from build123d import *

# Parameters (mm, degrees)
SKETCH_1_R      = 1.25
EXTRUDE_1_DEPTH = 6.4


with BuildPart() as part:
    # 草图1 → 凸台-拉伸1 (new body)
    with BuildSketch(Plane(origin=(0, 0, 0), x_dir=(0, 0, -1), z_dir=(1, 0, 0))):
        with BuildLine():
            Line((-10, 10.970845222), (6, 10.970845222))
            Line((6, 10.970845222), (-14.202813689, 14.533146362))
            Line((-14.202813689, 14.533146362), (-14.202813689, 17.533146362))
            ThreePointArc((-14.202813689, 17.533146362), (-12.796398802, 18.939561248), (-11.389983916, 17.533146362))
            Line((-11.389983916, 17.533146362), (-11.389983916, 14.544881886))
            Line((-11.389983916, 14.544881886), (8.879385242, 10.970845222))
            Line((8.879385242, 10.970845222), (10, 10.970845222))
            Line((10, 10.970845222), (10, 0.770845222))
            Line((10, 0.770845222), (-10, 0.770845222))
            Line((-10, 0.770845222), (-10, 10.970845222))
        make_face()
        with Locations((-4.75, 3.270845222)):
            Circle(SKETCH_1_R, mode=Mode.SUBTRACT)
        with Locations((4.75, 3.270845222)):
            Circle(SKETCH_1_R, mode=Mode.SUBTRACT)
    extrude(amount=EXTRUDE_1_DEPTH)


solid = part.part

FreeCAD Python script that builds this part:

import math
import FreeCAD as App
import Part
import Sketcher
from FreeCAD import Vector
Q = App.Units.Quantity

doc = App.newDocument("Part")
params = doc.addObject("Spreadsheet::Sheet", "Params")
for row, (alias, value) in enumerate([
    ("sketch1_diameter", "2.5 mm"),
    ("sketch1_width", "3 mm"),
    ("sketch1_height", "16 mm"),
    ("sketch1_height2", "20 mm"),
    ("sketch1_width2", "10.2 mm"),
    ("pad1_length", "6.4 mm"),
], start=1):
    params.set(f"A{row}", alias)
    params.set(f"B{row}", "=" + value)
    params.setAlias(f"B{row}", alias)

body = doc.addObject("PartDesign::Body", "Body")

sketch1 = body.newObject("Sketcher::SketchObject", "Sketch")
sketch1.AttachmentSupport = (doc.getObject("YZ_Plane"), [""])
sketch1.MapMode = "FlatFace"
sketch1.addGeometry([
    Part.LineSegment(Vector(11, -6, 0), Vector(11, 10, 0)),
    Part.LineSegment(Vector(11, 10, 0), Vector(0.8, 10, 0)),
    Part.LineSegment(Vector(0.8, 10, 0), Vector(0.8, -10, 0)),
    Part.LineSegment(Vector(0.8, -10, 0), Vector(11, -10, 0)),
    Part.LineSegment(Vector(11, -10, 0), Vector(11, -8.9, 0)),
    Part.LineSegment(Vector(11, -8.9, 0), Vector(14.5, 11.4, 0)),
    Part.LineSegment(Vector(14.5, 11.4, 0), Vector(17.5, 11.4, 0)),
    Part.ArcOfCircle(Part.Circle(Vector(17.5, 12.8, 0), Vector(0, 0, 1), 1.4), math.radians(-90), math.radians(90)),
    Part.LineSegment(Vector(17.5, 14.2, 0), Vector(14.5, 14.2, 0)),
    Part.LineSegment(Vector(14.5, 14.2, 0), Vector(11, -6, 0)),
    Part.Circle(Vector(3.3, -4.8, 0), Vector(0, 0, 1), 1.2),
    Part.Circle(Vector(3.3, 4.8, 0), Vector(0, 0, 1), 1.2),
], False)
sketch1.addConstraint([
    Sketcher.Constraint("Coincident", 0, 2, 1, 1),
    Sketcher.Constraint("Coincident", 1, 2, 2, 1),
    Sketcher.Constraint("Coincident", 2, 2, 3, 1),
    Sketcher.Constraint("Coincident", 3, 2, 4, 1),
    Sketcher.Constraint("Coincident", 4, 2, 5, 1),
    Sketcher.Constraint("Coincident", 5, 2, 6, 1),
    Sketcher.Constraint("Tangent", 6, 2, 7, 1),
    Sketcher.Constraint("Tangent", 7, 2, 8, 1),
    Sketcher.Constraint("Coincident", 8, 2, 9, 1),
    Sketcher.Constraint("Coincident", 9, 2, 0, 1),
    Sketcher.Constraint("Vertical", 0),
    Sketcher.Constraint("Horizontal", 1),
    Sketcher.Constraint("Vertical", 2),
    Sketcher.Constraint("Horizontal", 3),
    Sketcher.Constraint("Vertical", 4),
    Sketcher.Constraint("Horizontal", 6),
    Sketcher.Constraint("Horizontal", 8),
    Sketcher.Constraint("Equal", 10, 11),
    Sketcher.Constraint("Symmetric", 10, 3, 11, 3, -1),
    Sketcher.Constraint("Symmetric", 0, 2, 3, 2, -1),
    Sketcher.Constraint("Parallel", 5, 9),
    Sketcher.Constraint("Diameter", 10, 2.5),
    Sketcher.Constraint("DistanceX", 8, 2, 8, 1, 3.0),
    Sketcher.Constraint("DistanceY", 0, 1, 0, 2, 16.0),
    Sketcher.Constraint("DistanceY", 2, 2, 2, 1, 20.0),
    Sketcher.Constraint("Angle", 5, Q("80 deg")),
    Sketcher.Constraint("DistanceX", 1, 2, 1, 1, 10.2),
    Sketcher.Constraint("DistanceY", 10, 3, 11, 3, 9.5),
    Sketcher.Constraint("DistanceX", 11, 3, 0, 2, 7.7),
    Sketcher.Constraint("Radius", 7, 1.406415),
    Sketcher.Constraint("DistanceY", -1, 1, 7, 3, 12.796399),
    Sketcher.Constraint("DistanceX", 6, 1, 6, 2, 2.988264),
    Sketcher.Constraint("DistanceX", -1, 1, 5, 2, 14.544882),
])
sketch1.setExpression("Constraints[21]", "Params.sketch1_diameter")
sketch1.setExpression("Constraints[22]", "Params.sketch1_width")
sketch1.setExpression("Constraints[23]", "Params.sketch1_height")
sketch1.setExpression("Constraints[24]", "Params.sketch1_height2")
sketch1.setExpression("Constraints[26]", "Params.sketch1_width2")
pad1 = body.newObject("PartDesign::Pad", "Pad")
pad1.Profile = sketch1
pad1.setExpression("Length", "Params.pad1_length")

doc.recompute()
